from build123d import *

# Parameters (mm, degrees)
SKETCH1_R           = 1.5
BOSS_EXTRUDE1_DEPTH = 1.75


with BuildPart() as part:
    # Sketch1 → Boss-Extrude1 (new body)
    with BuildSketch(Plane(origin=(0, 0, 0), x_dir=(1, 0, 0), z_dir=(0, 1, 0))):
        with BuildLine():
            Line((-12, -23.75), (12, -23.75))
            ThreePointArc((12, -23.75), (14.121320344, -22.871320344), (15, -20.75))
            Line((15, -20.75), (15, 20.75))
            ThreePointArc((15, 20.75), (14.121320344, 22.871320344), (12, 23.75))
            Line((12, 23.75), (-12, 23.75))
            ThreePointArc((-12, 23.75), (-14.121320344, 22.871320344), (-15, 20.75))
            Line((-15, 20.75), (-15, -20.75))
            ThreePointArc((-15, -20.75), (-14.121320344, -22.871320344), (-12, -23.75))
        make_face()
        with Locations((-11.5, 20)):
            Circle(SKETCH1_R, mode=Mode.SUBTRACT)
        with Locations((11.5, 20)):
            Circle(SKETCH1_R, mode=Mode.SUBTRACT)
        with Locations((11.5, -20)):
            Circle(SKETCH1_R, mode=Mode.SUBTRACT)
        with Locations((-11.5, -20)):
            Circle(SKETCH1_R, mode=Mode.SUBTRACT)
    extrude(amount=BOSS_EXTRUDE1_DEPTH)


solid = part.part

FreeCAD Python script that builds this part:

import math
import FreeCAD as App
import Part
import Sketcher

V = App.Vector
Q = App.Units.Quantity

doc = App.newDocument("Part")
body = doc.addObject("PartDesign::Body", "Body")

# Sketch on XZ plane
sketch1 = body.newObject("Sketcher::SketchObject", "Sketch")
sketch1.AttachmentSupport = (doc.getObject("XZ_Plane"), [""])
sketch1.MapMode = "FlatFace"
sketch1.addGeometry([
    Part.LineSegment(V(-12, 23.75, 0), V(12, 23.75, 0)),  # 0
    Part.ArcOfCircle(Part.Circle(V(12, 20.75, 0), V(0, 0, 1), 3), math.radians(0), math.radians(90)),  # 1
    Part.LineSegment(V(15, 20.75, 0), V(15, -20.75, 0)),  # 2
    Part.ArcOfCircle(Part.Circle(V(12, -20.75, 0), V(0, 0, 1), 3), math.radians(-90), math.radians(0)),  # 3
    Part.LineSegment(V(12, -23.75, 0), V(-12, -23.75, 0)),  # 4
    Part.ArcOfCircle(Part.Circle(V(-12, -20.75, 0), V(0, 0, 1), 3), math.radians(180), math.radians(270)),  # 5
    Part.LineSegment(V(-15, -20.75, 0), V(-15, 20.75, 0)),  # 6
    Part.ArcOfCircle(Part.Circle(V(-12, 20.75, 0), V(0, 0, 1), 3), math.radians(90), math.radians(180)),  # 7
    Part.Circle(V(-11.5, 20, 0), V(0, 0, 1), 1.5),  # 8
    Part.Circle(V(11.5, 20, 0), V(0, 0, 1), 1.5),  # 9
    Part.Circle(V(-11.5, -20, 0), V(0, 0, 1), 1.5),  # 10
    Part.Circle(V(11.5, -20, 0), V(0, 0, 1), 1.5),  # 11
], False)
sketch1.addConstraint([
    Sketcher.Constraint("Tangent", 0, 2, 1, 2),
    Sketcher.Constraint("Tangent", 1, 1, 2, 1),
    Sketcher.Constraint("Tangent", 2, 2, 3, 2),
    Sketcher.Constraint("Tangent", 3, 1, 4, 1),
    Sketcher.Constraint("Tangent", 4, 2, 5, 2),
    Sketcher.Constraint("Tangent", 5, 1, 6, 1),
    Sketcher.Constraint("Tangent", 6, 2, 7, 2),
    Sketcher.Constraint("Tangent", 7, 1, 0, 1),
    Sketcher.Constraint("Horizontal", 0),
    Sketcher.Constraint("Vertical", 2),
    Sketcher.Constraint("Horizontal", 4),
    Sketcher.Constraint("Vertical", 6),
    Sketcher.Constraint("Equal", 1, 3),
    Sketcher.Constraint("Equal", 3, 5),
    Sketcher.Constraint("Equal", 5, 7),
    Sketcher.Constraint("Equal", 8, 9),
    Sketcher.Constraint("Equal", 9, 10),
    Sketcher.Constraint("Equal", 10, 11),
    Sketcher.Constraint("Symmetric", 1, 3, 5, 3, -1, 1),
    Sketcher.Constraint("Symmetric", 9, 3, 10, 3, -1, 1),
    Sketcher.Constraint("Symmetric", 8, 3, 11, 3, -1, 1),
    Sketcher.Constraint("Symmetric", 8, 3, 9, 3, -2),
    Sketcher.Constraint("Diameter", 8, Q("3 mm")),
    Sketcher.Constraint("Radius", 1, Q("3 mm")),
    Sketcher.Constraint("DistanceX", 0, 1, 0, 2, Q("24 mm")),
    Sketcher.Constraint("DistanceY", 2, 2, 2, 1, Q("41.5 mm")),
    Sketcher.Constraint("DistanceY", -1, 1, 8, 3, Q("20 mm")),
    Sketcher.Constraint("DistanceX", 8, 3, 9, 3, Q("23 mm")),
])
pad1 = body.newObject("PartDesign::Pad", "Pad")
pad1.Profile = sketch1
pad1.Length = 1.75
pad1.Reversed = True

doc.recompute()
